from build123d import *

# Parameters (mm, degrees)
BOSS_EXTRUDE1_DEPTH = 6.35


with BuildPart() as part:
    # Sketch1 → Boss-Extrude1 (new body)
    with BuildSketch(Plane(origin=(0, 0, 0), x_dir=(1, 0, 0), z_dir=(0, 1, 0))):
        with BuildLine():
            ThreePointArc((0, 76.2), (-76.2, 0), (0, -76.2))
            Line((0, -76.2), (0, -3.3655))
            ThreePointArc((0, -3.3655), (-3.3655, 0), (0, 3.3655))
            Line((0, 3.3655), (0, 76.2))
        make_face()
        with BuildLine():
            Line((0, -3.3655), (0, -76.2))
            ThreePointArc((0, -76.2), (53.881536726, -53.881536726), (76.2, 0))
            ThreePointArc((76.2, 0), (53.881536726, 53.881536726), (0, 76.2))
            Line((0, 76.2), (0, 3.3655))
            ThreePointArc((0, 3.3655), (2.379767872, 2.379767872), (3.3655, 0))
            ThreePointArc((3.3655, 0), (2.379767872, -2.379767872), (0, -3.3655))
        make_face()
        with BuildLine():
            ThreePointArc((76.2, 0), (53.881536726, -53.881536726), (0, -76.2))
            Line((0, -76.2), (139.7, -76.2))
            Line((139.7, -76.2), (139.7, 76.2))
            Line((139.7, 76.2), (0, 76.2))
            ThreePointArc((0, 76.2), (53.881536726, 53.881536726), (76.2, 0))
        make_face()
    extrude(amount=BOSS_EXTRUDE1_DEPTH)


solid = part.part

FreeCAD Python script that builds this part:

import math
import FreeCAD as App
import Part
import Sketcher
from FreeCAD import Vector
Q = App.Units.Quantity

doc = App.newDocument("Part")
body = doc.addObject("PartDesign::Body", "Body")

# Sketch on XZ plane
sketch1 = doc.addObject("Sketcher::SketchObject", "Sketch")
body.addObject(sketch1)
sketch1.AttachmentSupport = (doc.XZ_Plane, [""])
sketch1.MapMode = "FlatFace"
sketch1.addGeometry([
    Part.ArcOfCircle(Part.Circle(Vector(0, 0, 0), Vector(0, 0, 1), 76.2), math.radians(90), math.radians(270)),  # 0
    Part.LineSegment(Vector(0, 76.2, 0), Vector(139.7, 76.2, 0)),  # 1
    Part.LineSegment(Vector(139.7, 76.2, 0), Vector(139.7, -76.2, 0)),  # 2
    Part.LineSegment(Vector(139.7, -76.2, 0), Vector(0, -76.2, 0)),  # 3
    Part.ArcOfCircle(Part.Circle(Vector(0, 0, 0), Vector(0, 0, 1), 3.4), math.radians(90), math.radians(270)),  # 4
    Part.ArcOfCircle(Part.Circle(Vector(0, 0, 0), Vector(0, 0, 1), 3.4), math.radians(-90), math.radians(0)),  # 5
    Part.ArcOfCircle(Part.Circle(Vector(0, 0, 0), Vector(0, 0, 1), 3.4), math.radians(0), math.radians(90)),  # 6
], False)
sketch1.addConstraint([
    Sketcher.Constraint("Tangent", 0, 1, 1, 1),
    Sketcher.Constraint("Coincident", 1, 2, 2, 1),
    Sketcher.Constraint("Coincident", 2, 2, 3, 1),
    Sketcher.Constraint("Tangent", 3, 2, 0, 2),
    Sketcher.Constraint("Tangent", 4, 2, 5, 1),
    Sketcher.Constraint("Tangent", 5, 2, 6, 1),
    Sketcher.Constraint("Tangent", 6, 2, 4, 1),
    Sketcher.Constraint("Horizontal", 1),
    Sketcher.Constraint("Vertical", 2),
    Sketcher.Constraint("Horizontal", 3),
    Sketcher.Constraint("Coincident", 0, 3, -1, 1),
    Sketcher.Constraint("Coincident", 4, 3, -1, 1),
    Sketcher.Constraint("PointOnObject", 4, 2, -2),
    Sketcher.Constraint("PointOnObject", 5, 2, -1),
    Sketcher.Constraint("PointOnObject", 6, 2, -2),
    Sketcher.Constraint("Radius", 0, Q("3 in")),
    Sketcher.Constraint("DistanceX", 1, 1, 1, 2, Q("5.5 in")),
    Sketcher.Constraint("Radius", 4, Q("0.1325 in")),
])
pad1 = doc.addObject("PartDesign::Pad", "Pad")
body.addObject(pad1)
pad1.Profile = sketch1
pad1.Length = Q("0.25 in")
pad1.Reversed = True

doc.recompute()
